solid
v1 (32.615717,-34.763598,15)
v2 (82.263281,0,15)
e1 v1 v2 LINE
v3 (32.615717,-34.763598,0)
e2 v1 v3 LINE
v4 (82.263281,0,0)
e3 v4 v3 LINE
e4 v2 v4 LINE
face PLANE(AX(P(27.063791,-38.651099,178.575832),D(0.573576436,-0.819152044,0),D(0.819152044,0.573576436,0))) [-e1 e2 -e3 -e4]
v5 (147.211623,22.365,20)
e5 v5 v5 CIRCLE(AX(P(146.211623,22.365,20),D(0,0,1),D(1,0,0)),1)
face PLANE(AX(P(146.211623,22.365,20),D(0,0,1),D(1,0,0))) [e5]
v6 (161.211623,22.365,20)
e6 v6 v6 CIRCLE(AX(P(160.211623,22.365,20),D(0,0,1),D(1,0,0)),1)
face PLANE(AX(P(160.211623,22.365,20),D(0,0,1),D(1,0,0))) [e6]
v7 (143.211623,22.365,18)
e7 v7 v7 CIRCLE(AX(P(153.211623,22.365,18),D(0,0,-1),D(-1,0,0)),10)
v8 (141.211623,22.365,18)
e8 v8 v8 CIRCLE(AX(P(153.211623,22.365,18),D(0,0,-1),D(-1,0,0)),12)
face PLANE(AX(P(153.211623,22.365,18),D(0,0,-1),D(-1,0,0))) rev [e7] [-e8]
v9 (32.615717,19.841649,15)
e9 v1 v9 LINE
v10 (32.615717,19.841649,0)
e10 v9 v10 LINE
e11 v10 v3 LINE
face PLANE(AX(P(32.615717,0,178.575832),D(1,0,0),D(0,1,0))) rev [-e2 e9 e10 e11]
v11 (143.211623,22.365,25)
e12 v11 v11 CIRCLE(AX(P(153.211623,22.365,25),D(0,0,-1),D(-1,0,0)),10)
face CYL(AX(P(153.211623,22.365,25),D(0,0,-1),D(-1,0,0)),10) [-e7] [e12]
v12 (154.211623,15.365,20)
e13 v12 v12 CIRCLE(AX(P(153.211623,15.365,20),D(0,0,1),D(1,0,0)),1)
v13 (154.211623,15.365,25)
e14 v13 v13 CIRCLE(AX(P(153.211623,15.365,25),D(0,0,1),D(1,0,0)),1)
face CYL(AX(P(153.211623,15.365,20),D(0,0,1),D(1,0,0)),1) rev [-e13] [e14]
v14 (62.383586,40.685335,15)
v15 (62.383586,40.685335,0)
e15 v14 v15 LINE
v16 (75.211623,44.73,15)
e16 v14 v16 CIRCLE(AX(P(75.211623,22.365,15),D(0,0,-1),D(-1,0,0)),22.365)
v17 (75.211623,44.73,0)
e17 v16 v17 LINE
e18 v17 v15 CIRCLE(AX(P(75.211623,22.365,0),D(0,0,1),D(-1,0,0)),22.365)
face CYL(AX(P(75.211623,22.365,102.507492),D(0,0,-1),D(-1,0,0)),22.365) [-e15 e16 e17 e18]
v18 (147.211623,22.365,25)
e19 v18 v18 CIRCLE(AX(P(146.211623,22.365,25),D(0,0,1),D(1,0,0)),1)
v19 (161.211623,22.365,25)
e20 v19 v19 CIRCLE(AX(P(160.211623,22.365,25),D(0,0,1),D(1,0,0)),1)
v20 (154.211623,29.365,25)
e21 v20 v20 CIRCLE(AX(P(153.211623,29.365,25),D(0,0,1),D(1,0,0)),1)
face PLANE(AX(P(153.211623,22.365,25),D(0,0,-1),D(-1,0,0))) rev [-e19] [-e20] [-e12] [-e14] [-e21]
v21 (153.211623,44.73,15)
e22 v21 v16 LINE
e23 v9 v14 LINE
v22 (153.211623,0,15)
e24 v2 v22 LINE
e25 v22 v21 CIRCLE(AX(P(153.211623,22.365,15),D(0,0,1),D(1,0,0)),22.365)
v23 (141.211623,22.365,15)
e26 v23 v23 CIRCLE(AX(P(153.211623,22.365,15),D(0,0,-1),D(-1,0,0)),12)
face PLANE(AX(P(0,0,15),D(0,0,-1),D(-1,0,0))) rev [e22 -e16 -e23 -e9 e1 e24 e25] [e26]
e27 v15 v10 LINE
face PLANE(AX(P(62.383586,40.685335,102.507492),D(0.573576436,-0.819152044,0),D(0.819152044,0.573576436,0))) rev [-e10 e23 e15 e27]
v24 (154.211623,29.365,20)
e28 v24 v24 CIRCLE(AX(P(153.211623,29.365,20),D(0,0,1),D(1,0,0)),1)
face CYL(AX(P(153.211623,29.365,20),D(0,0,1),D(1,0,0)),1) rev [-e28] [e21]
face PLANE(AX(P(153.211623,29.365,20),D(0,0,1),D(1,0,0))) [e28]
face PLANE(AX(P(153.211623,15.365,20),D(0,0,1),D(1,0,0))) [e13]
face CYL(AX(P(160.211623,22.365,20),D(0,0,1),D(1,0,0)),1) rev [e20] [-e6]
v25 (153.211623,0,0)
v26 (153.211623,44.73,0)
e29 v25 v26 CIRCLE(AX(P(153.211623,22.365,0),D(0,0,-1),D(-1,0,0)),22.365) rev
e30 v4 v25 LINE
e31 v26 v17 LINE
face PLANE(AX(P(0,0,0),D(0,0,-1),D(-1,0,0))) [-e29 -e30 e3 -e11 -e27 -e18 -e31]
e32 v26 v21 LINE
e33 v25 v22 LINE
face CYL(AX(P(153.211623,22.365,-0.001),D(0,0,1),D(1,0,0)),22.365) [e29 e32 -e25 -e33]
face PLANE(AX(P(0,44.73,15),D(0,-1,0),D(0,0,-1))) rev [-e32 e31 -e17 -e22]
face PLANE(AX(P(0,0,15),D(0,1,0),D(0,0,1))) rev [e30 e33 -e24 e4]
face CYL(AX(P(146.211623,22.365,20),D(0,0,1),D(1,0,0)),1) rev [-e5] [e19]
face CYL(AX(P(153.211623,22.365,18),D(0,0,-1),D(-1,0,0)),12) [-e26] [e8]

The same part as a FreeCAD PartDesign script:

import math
import FreeCAD as App
import Part
import Sketcher

V = App.Vector
Q = App.Units.Quantity

doc = App.newDocument("Part")
body = doc.addObject("PartDesign::Body", "Body")

sketch1 = body.newObject("Sketcher::SketchObject", "Sketch")
sketch1.AttachmentSupport = (doc.getObject("XY_Plane"), [""])
sketch1.MapMode = "FlatFace"
sketch1.addGeometry(Part.LineSegment(V(0, 45, 0), V(0, 0, 0)), False)
sketch1.addGeometry(Part.LineSegment(V(0, 0, 0), V(300, 0, 0)), False)
sketch1.addGeometry(Part.LineSegment(V(300, 0, 0), V(300, 45, 0)), False)
sketch1.addGeometry(Part.LineSegment(V(300, 45, 0), V(0, 45, 0)), False)
sketch1.addConstraint(Sketcher.Constraint("Coincident", 0, 2, 1, 1))
sketch1.addConstraint(Sketcher.Constraint("Coincident", 1, 2, 2, 1))
sketch1.addConstraint(Sketcher.Constraint("Coincident", 2, 2, 3, 1))
sketch1.addConstraint(Sketcher.Constraint("Coincident", 3, 2, 0, 1))
sketch1.addConstraint(Sketcher.Constraint("Vertical", 0))
sketch1.addConstraint(Sketcher.Constraint("Horizontal", 1))
sketch1.addConstraint(Sketcher.Constraint("Vertical", 2))
sketch1.addConstraint(Sketcher.Constraint("Horizontal", 3))
sketch1.addConstraint(Sketcher.Constraint("Coincident", 0, 2, -1, 1))
sketch1.addConstraint(Sketcher.Constraint("DistanceX", 1, 1, 1, 2, 300.0))
sketch1.addConstraint(Sketcher.Constraint("DistanceY", 0, 2, 0, 1, 44.73))
pad1 = body.newObject("PartDesign::Pad", "Pad")
pad1.Profile = sketch1
pad1.Length = 15

sketch2 = body.newObject("Sketcher::SketchObject", "Sketch001")
sketch2.AttachmentSupport = (doc.getObject("XY_Plane"), [""])
sketch2.MapMode = "FlatFace"
sketch2.AttachmentOffset = App.Placement(V(0, 0, 15), App.Rotation())
sketch2.addGeometry(Part.LineSegment(V(300, 45, 0), V(153, 45, 0)), False)
sketch2.addGeometry(Part.ArcOfCircle(Part.Circle(V(153, 22, 0), V(0, 0, 1), 22), math.radians(-90), math.radians(90)), False)
sketch2.addGeometry(Part.LineSegment(V(153, 0, 0), V(300, 0, 0)), False)
sketch2.addGeometry(Part.LineSegment(V(300, 0, 0), V(300, 45, 0)), False)
sketch2.addConstraint(Sketcher.Constraint("Tangent", 0, 2, 1, 2))
sketch2.addConstraint(Sketcher.Constraint("Tangent", 1, 1, 2, 1))
sketch2.addConstraint(Sketcher.Constraint("Coincident", 2, 2, 3, 1))
sketch2.addConstraint(Sketcher.Constraint("Coincident", 3, 2, 0, 1))
sketch2.addConstraint(Sketcher.Constraint("Horizontal", 0))
sketch2.addConstraint(Sketcher.Constraint("Horizontal", 2))
sketch2.addConstraint(Sketcher.Constraint("Vertical", 3))
sketch2.addConstraint(Sketcher.Constraint("PointOnObject", 1, 1, -1))
sketch2.addConstraint(Sketcher.Constraint("DistanceX", -1, 1, 2, 2, 300.0))
sketch2.addConstraint(Sketcher.Constraint("Radius", 1, 22.365))
sketch2.addConstraint(Sketcher.Constraint("DistanceX", 0, 2, 0, 1, 146.788377))
pocket1 = body.newObject("PartDesign::Pocket", "Pocket")
pocket1.Profile = sketch2
pocket1.Type = "UpToFirst"

sketch3 = body.newObject("Sketcher::SketchObject", "Sketch002")
sketch3.AttachmentSupport = (doc.getObject("XY_Plane"), [""])
sketch3.MapMode = "FlatFace"
sketch3.AttachmentOffset = App.Placement(V(0, 0, 15), App.Rotation())
sketch3.addGeometry(Part.Circle(V(153, 22, 0), V(0, 0, 1), 10), False)
sketch3.addConstraint(Sketcher.Constraint("Diameter", 0, 20.0))
sketch3.addConstraint(Sketcher.Constraint("DistanceY", -1, 1, 0, 3, 22.365))
sketch3.addConstraint(Sketcher.Constraint("DistanceX", -1, 1, 0, 3, 153.211623))
pad2 = body.newObject("PartDesign::Pad", "Pad001")
pad2.Profile = sketch3
pad2.Length = 10

sketch4 = body.newObject("Sketcher::SketchObject", "Sketch003")
sketch4.AttachmentSupport = (doc.getObject("XY_Plane"), [""])
sketch4.MapMode = "FlatFace"
sketch4.AttachmentOffset = App.Placement(V(0, 0, 25), App.Rotation())
sketch4.addGeometry(Part.Circle(V(153.2, 29.4, 0), V(0, 0, 1), 1), False)
sketch4.addGeometry(Part.Circle(V(160.2, -284.1, 0), V(0, 0, 1), 1), False)
sketch4.addGeometry(Part.Circle(V(-153.2, -291.1, 0), V(0, 0, 1), 1), False)
sketch4.addGeometry(Part.Circle(V(-160.2, 22.4, 0), V(0, 0, 1), 1), False)
sketch4.addGeometry(Part.Circle(V(160.2, 22.4, 0), V(0, 0, 1), 1), False)
sketch4.addGeometry(Part.Circle(V(153.2, 15.4, 0), V(0, 0, 1), 1), False)
sketch4.addGeometry(Part.Circle(V(146.2, 22.4, 0), V(0, 0, 1), 1), False)
sketch4.addConstraint(Sketcher.Constraint("Equal", 0, 1))
sketch4.addConstraint(Sketcher.Constraint("Equal", 1, 2))
sketch4.addConstraint(Sketcher.Constraint("Equal", 2, 3))
sketch4.addConstraint(Sketcher.Constraint("Equal", 3, 4))
sketch4.addConstraint(Sketcher.Constraint("Equal", 4, 5))
sketch4.addConstraint(Sketcher.Constraint("Equal", 5, 6))
sketch4.addConstraint(Sketcher.Constraint("Symmetric", 3, 3, 4, 3, -2))
sketch4.addConstraint(Sketcher.Constraint("Horizontal", 4, 3, 6, 3))
sketch4.addConstraint(Sketcher.Constraint("Vertical", 1, 3, 4, 3))
sketch4.addConstraint(Sketcher.Constraint("Vertical", 0, 3, 5, 3))
sketch4.addConstraint(Sketcher.Constraint("Diameter", 0, 2.0))
sketch4.addConstraint(Sketcher.Constraint("DistanceX", 0, 3, 1, 3, 7.0))
sketch4.addConstraint(Sketcher.Constraint("DistanceY", 2, 3, 1, 3, 7.0))
sketch4.addConstraint(Sketcher.Constraint("DistanceY", 3, 3, 0, 3, 7.0))
sketch4.addConstraint(Sketcher.Constraint("DistanceX", 3, 3, 2, 3, 7.0))
sketch4.addConstraint(Sketcher.Constraint("DistanceY", 5, 3, 4, 3, 7.0))
sketch4.addConstraint(Sketcher.Constraint("DistanceX", 6, 3, 5, 3, 7.0))
sketch4.addConstraint(Sketcher.Constraint("DistanceY", -1, 1, 0, 3, 29.365))
sketch4.addConstraint(Sketcher.Constraint("DistanceX", -1, 1, 0, 3, 153.211623))
sketch4.addConstraint(Sketcher.Constraint("DistanceY", 1, 3, -1, 1, 284.058247))
pocket2 = body.newObject("PartDesign::Pocket", "Pocket001")
pocket2.Profile = sketch4
pocket2.Length = 5

sketch5 = body.newObject("Sketcher::SketchObject", "Sketch004")
sketch5.AttachmentSupport = (doc.getObject("XY_Plane"), [""])
sketch5.MapMode = "FlatFace"
sketch5.addGeometry(Part.LineSegment(V(33, -35, 0), V(82, 0, 0)), False)
sketch5.addGeometry(Part.LineSegment(V(82, 0, 0), V(33, 0, 0)), False)
sketch5.addGeometry(Part.LineSegment(V(33, 0, 0), V(33, -35, 0)), False)
sketch5.addConstraint(Sketcher.Constraint("Coincident", 0, 2, 1, 1))
sketch5.addConstraint(Sketcher.Constraint("Coincident", 1, 2, 2, 1))
sketch5.addConstraint(Sketcher.Constraint("Coincident", 2, 2, 0, 1))
sketch5.addConstraint(Sketcher.Constraint("Horizontal", 1))
sketch5.addConstraint(Sketcher.Constraint("Vertical", 2))
sketch5.addConstraint(Sketcher.Constraint("PointOnObject", 0, 2, -1))
sketch5.addConstraint(Sketcher.Constraint("Angle", 0, Q("35 deg")))
sketch5.addConstraint(Sketcher.Constraint("DistanceY", 2, 2, 2, 1, 34.763598))
sketch5.addConstraint(Sketcher.Constraint("DistanceX", -1, 1, 0, 2, 82.263281))
pad3 = body.newObject("PartDesign::Pad", "Pad002")
pad3.Profile = sketch5
pad3.Length = 15

sketch6 = body.newObject("Sketcher::SketchObject", "Sketch005")
sketch6.AttachmentSupport = (doc.getObject("XY_Plane"), [""])
sketch6.MapMode = "FlatFace"
sketch6.addGeometry(Part.LineSegment(V(33, 20, 0), V(33, 0, 0)), False)
sketch6.addGeometry(Part.LineSegment(V(33, 0, 0), V(0, 0, 0)), False)
sketch6.addGeometry(Part.LineSegment(V(0, 0, 0), V(0, 45, 0)), False)
sketch6.addGeometry(Part.LineSegment(V(0, 45, 0), V(75, 45, 0)), False)
sketch6.addGeometry(Part.ArcOfCircle(Part.Circle(V(75, 22, 0), V(0, 0, 1), 22), math.radians(90), math.radians(125)), False)
sketch6.addGeometry(Part.LineSegment(V(62, 41, 0), V(33, 20, 0)), False)
sketch6.addConstraint(Sketcher.Constraint("Coincident", 0, 2, 1, 1))
sketch6.addConstraint(Sketcher.Constraint("Coincident", 1, 2, 2, 1))
sketch6.addConstraint(Sketcher.Constraint("Coincident", 2, 2, 3, 1))
sketch6.addConstraint(Sketcher.Constraint("Tangent", 3, 2, 4, 1))
sketch6.addConstraint(Sketcher.Constraint("Tangent", 4, 2, 5, 1))
sketch6.addConstraint(Sketcher.Constraint("Coincident", 5, 2, 0, 1))
sketch6.addConstraint(Sketcher.Constraint("Vertical", 0))
sketch6.addConstraint(Sketcher.Constraint("Horizontal", 1))
sketch6.addConstraint(Sketcher.Constraint("Vertical", 2))
sketch6.addConstraint(Sketcher.Constraint("Horizontal", 3))
sketch6.addConstraint(Sketcher.Constraint("Coincident", 1, 2, -1, 1))
sketch6.addConstraint(Sketcher.Constraint("Angle", 5, Q("-145 deg")))
sketch6.addConstraint(Sketcher.Constraint("Radius", 4, 22.365))
sketch6.addConstraint(Sketcher.Constraint("DistanceY", 2, 1, 2, 2, 44.73))
sketch6.addConstraint(Sketcher.Constraint("DistanceY", 0, 2, 0, 1, 19.841649))
sketch6.addConstraint(Sketcher.Constraint("DistanceX", 1, 2, 1, 1, 32.615717))
pocket3 = body.newObject("PartDesign::Pocket", "Pocket002")
pocket3.Profile = sketch6
pocket3.Length = 15
pocket3.Reversed = True

sketch7 = body.newObject("Sketcher::SketchObject", "Sketch006")
sketch7.AttachmentSupport = (doc.getObject("XY_Plane"), [""])
sketch7.MapMode = "FlatFace"
sketch7.AttachmentOffset = App.Placement(V(0, 0, 15), App.Rotation())
sketch7.addGeometry(Part.Circle(V(153, 22, 0), V(0, 0, 1), 12), False)
sketch7.addGeometry(Part.Circle(V(153, 22, 0), V(0, 0, 1), 10), False)
sketch7.addConstraint(Sketcher.Constraint("Coincident", 1, 3, 0, 3))
sketch7.addConstraint(Sketcher.Constraint("Diameter", 0, 24.0))
sketch7.addConstraint(Sketcher.Constraint("Diameter", 1, 20.0))
sketch7.addConstraint(Sketcher.Constraint("DistanceY", -1, 1, 0, 3, 22.365))
sketch7.addConstraint(Sketcher.Constraint("DistanceX", -1, 1, 0, 3, 153.211623))
pad4 = body.newObject("PartDesign::Pad", "Pad003")
pad4.Profile = sketch7
pad4.Length = 3

doc.recompute()
